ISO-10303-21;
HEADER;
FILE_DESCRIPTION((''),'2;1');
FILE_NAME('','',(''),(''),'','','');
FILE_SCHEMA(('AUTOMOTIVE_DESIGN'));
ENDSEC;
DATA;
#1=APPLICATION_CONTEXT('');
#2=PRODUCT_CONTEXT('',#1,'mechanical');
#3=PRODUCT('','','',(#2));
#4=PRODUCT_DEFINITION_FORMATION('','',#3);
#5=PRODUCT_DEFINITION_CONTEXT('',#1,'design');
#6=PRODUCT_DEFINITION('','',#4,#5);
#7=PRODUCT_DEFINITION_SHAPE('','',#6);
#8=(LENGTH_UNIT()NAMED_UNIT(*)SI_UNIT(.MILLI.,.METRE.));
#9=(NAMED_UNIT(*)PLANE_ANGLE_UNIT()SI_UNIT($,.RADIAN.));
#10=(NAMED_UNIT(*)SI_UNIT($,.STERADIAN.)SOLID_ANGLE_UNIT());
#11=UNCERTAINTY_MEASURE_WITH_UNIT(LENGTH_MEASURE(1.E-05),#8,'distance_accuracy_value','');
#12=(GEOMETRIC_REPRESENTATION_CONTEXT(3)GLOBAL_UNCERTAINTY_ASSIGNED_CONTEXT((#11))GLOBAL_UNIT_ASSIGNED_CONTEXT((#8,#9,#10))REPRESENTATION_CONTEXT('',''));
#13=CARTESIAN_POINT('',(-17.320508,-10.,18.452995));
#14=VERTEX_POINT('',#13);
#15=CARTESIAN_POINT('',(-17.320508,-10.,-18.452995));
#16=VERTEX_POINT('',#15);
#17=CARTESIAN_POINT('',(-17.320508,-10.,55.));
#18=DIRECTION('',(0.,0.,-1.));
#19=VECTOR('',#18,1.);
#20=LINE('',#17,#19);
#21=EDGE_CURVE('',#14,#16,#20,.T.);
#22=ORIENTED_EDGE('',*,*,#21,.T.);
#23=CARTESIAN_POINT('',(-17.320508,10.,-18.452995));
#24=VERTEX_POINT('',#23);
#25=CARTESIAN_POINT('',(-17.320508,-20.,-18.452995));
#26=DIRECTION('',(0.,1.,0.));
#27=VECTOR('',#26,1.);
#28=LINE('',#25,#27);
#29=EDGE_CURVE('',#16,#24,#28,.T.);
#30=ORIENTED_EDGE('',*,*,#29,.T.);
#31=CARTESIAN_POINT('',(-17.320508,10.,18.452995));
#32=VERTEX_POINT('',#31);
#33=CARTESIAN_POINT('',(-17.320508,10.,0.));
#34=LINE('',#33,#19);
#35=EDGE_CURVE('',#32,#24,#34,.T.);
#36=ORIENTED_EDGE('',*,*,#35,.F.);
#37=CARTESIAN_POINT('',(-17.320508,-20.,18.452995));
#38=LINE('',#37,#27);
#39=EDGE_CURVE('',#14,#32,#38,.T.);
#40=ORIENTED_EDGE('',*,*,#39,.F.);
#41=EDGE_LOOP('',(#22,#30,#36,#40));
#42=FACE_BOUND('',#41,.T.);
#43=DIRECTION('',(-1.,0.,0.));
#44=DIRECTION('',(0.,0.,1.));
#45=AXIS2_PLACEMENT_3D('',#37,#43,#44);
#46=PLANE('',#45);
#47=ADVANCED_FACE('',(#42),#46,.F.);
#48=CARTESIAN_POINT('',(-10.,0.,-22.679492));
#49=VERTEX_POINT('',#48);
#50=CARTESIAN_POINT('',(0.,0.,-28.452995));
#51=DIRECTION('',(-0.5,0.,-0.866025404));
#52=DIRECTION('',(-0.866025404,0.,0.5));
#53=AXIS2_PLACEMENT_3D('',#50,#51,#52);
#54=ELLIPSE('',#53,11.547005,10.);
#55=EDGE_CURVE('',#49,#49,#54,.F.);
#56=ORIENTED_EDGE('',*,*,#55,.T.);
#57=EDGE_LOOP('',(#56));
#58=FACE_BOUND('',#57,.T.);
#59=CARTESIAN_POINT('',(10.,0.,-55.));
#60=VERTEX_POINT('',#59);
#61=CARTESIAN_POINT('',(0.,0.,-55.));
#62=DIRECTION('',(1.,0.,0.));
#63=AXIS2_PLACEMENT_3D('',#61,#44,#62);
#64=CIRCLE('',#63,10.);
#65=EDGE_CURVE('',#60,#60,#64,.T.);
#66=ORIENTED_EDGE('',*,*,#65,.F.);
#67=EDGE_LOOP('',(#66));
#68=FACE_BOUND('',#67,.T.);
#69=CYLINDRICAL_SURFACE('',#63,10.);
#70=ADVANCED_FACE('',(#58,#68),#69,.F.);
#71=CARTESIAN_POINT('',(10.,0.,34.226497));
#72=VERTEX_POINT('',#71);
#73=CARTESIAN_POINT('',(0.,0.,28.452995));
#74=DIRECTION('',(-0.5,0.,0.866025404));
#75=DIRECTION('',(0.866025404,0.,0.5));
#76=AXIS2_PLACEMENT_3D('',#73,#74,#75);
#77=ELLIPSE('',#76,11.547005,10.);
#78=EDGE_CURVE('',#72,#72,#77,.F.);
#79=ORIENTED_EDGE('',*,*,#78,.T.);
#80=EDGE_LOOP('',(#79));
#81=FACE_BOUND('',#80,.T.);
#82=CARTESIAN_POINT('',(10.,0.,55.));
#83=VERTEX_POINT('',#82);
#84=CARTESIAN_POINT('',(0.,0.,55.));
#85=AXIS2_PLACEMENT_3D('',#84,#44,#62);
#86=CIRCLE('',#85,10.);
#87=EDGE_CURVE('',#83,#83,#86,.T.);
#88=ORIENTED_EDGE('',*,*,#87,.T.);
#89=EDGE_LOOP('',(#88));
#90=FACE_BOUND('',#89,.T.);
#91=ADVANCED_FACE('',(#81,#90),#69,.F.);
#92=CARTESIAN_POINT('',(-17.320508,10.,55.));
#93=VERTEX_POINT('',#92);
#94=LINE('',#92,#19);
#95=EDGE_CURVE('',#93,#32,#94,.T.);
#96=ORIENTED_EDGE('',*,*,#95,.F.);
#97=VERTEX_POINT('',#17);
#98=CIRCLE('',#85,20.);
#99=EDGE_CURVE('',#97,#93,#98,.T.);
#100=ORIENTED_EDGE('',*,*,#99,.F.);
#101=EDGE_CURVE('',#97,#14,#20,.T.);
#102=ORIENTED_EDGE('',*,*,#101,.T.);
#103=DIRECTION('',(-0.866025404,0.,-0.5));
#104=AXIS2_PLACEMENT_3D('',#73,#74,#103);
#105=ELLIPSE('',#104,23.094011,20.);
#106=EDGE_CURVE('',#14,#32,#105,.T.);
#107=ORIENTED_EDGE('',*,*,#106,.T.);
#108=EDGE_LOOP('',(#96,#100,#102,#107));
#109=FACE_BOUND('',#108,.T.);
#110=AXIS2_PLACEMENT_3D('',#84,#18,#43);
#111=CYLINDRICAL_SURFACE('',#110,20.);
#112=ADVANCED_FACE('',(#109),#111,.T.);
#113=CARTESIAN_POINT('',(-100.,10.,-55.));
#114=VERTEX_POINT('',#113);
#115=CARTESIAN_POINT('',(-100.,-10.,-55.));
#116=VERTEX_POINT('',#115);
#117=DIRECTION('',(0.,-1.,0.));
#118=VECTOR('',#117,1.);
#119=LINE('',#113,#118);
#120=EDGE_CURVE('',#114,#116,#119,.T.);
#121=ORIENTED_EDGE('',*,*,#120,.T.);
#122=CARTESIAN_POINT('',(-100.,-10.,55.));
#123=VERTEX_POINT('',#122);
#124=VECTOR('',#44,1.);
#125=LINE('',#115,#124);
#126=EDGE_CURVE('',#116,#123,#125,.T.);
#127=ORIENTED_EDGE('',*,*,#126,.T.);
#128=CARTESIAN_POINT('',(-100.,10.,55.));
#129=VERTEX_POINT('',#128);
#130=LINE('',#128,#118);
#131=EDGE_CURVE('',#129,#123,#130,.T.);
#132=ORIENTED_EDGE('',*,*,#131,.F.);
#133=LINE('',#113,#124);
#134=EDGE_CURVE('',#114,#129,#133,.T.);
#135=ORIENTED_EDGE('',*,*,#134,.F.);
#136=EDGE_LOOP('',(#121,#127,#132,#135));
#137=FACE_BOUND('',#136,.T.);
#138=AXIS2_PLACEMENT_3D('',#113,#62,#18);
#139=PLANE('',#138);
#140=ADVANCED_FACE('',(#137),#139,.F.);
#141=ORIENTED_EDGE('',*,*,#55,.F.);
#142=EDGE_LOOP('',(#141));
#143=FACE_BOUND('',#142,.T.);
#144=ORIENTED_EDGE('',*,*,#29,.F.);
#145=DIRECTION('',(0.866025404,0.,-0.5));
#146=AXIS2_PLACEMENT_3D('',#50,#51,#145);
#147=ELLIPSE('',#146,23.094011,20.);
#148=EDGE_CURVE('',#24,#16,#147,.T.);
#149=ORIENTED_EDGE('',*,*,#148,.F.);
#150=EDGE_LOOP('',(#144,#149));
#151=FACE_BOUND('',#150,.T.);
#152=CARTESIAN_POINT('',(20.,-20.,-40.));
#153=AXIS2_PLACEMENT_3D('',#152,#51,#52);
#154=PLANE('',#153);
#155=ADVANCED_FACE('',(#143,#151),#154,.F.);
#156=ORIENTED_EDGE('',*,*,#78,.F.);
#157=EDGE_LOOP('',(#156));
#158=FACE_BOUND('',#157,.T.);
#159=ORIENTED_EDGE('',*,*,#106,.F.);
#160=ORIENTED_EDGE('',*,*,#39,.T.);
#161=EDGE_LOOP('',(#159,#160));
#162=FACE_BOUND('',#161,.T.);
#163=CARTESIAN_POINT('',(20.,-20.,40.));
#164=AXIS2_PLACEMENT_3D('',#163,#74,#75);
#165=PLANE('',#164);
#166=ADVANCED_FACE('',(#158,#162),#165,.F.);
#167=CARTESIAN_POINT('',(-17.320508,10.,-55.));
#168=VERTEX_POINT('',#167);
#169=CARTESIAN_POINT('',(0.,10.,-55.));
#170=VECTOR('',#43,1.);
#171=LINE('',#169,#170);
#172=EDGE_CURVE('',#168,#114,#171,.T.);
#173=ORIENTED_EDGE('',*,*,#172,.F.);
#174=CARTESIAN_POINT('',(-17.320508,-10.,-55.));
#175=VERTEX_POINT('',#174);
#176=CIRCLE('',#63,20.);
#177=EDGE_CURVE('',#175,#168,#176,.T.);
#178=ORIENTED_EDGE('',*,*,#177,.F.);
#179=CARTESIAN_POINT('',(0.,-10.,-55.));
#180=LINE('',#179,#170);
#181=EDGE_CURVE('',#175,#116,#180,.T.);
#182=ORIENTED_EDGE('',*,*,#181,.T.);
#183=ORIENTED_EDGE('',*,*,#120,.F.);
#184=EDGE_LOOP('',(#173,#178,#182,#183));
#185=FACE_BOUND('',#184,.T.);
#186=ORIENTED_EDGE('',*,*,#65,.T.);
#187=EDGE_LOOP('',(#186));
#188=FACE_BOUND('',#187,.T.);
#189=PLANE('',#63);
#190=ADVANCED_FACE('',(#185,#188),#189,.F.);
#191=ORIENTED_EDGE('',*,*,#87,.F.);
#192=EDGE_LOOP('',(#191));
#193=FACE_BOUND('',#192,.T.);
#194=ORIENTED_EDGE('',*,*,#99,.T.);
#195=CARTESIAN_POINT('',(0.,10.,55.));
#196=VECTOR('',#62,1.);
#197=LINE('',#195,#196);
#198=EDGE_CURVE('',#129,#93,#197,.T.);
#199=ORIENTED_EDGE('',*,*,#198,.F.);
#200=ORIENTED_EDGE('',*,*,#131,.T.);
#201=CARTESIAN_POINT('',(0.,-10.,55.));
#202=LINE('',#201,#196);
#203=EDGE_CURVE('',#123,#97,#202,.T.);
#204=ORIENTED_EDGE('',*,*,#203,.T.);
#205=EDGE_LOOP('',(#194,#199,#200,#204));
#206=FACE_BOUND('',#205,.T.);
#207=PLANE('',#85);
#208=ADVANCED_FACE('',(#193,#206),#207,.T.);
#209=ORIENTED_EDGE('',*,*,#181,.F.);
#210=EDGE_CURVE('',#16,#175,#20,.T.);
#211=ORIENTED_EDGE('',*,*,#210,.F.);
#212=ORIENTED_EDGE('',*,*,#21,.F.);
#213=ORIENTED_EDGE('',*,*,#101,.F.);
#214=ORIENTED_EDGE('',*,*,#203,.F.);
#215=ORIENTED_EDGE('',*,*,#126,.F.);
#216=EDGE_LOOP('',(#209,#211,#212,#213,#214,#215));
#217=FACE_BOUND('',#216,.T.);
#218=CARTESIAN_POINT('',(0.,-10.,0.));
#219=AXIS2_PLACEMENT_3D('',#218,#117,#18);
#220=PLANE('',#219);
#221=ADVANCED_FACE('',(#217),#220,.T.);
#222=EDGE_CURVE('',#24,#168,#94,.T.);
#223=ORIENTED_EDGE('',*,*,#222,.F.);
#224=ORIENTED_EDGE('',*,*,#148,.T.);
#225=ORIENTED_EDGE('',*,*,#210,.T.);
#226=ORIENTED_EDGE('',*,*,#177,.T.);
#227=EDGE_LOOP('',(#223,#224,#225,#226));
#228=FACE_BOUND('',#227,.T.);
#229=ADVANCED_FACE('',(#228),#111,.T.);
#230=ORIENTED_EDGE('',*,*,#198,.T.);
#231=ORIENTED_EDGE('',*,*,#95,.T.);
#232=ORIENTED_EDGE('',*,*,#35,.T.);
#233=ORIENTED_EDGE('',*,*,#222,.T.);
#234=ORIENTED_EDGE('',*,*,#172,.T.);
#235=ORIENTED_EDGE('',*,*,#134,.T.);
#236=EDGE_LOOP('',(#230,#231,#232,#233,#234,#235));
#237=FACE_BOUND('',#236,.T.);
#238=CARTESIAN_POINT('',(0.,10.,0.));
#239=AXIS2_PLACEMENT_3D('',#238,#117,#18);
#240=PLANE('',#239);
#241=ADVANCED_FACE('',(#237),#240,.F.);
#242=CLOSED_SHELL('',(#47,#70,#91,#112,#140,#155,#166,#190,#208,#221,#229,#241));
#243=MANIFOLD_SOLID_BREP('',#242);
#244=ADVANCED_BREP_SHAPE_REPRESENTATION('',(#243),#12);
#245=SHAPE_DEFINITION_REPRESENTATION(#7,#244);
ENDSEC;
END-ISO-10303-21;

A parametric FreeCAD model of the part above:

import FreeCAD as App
import Part
import Sketcher

V = App.Vector
Q = App.Units.Quantity


def add_polygon(sketch, points):
    """Adds a closed chain of lines whose ends are joined by coincident constraints."""
    first, n = sketch.GeometryCount, len(points)
    for a, b in zip(points, points[1:] + points[:1]):
        sketch.addGeometry(Part.LineSegment(App.Vector(*a, 0), App.Vector(*b, 0)), False)
    for i in range(n):
        sketch.addConstraint(Sketcher.Constraint("Coincident", first + i, 2, first + (i + 1) % n, 1))

doc = App.newDocument("Part")
body = doc.addObject("PartDesign::Body", "Body")

# Sketch on XY plane
sketch1 = body.newObject("Sketcher::SketchObject", "Sketch")
sketch1.AttachmentSupport = (doc.getObject("XY_Plane"), [""])
sketch1.MapMode = "FlatFace"
sketch1.addGeometry(Part.Circle(V(0, 0, 0), V(0, 0, 1), 20), False)
sketch1.addConstraint(Sketcher.Constraint("Coincident", 0, 3, -1, 1))
sketch1.addConstraint(Sketcher.Constraint("Diameter", 0, Q("40 mm")))
pad1 = body.newObject("PartDesign::Pad", "Pad")
pad1.Profile = sketch1
pad1.Length = 110
pad1.Midplane = True

# Sketch on XZ plane
sketch2 = body.newObject("Sketcher::SketchObject", "Sketch001")
sketch2.AttachmentSupport = (doc.getObject("XZ_Plane"), [""])
sketch2.MapMode = "FlatFace"
add_polygon(sketch2, [(-100, -55), (-100, 55), (0, 55), (0, -55)])  # lines 0-3
sketch2.addConstraint(Sketcher.Constraint("Vertical", 0))
sketch2.addConstraint(Sketcher.Constraint("Horizontal", 1))
sketch2.addConstraint(Sketcher.Constraint("Vertical", 2))
sketch2.addConstraint(Sketcher.Constraint("Horizontal", 3))
sketch2.addConstraint(Sketcher.Constraint("Symmetric", 1, 2, 2, 2, -1, 1))
sketch2.addConstraint(Sketcher.Constraint("DistanceX", 1, 1, 1, 2, Q("100 mm")))
sketch2.addConstraint(Sketcher.Constraint("DistanceY", 0, 1, 0, 2, Q("110 mm")))
pad2 = body.newObject("PartDesign::Pad", "Pad001")
pad2.Profile = sketch2
pad2.Length = 20
pad2.Midplane = True

# Sketch on XY plane
sketch3 = body.newObject("Sketcher::SketchObject", "Sketch002")
sketch3.AttachmentSupport = (doc.getObject("XY_Plane"), [""])
sketch3.MapMode = "FlatFace"
sketch3.AttachmentOffset = App.Placement(V(0, 0, 55), App.Rotation())
sketch3.addGeometry(Part.Circle(V(0, 0, 0), V(0, 0, 1), 10), False)
sketch3.addConstraint(Sketcher.Constraint("Coincident", 0, 3, -1, 1))
sketch3.addConstraint(Sketcher.Constraint("Diameter", 0, Q("20 mm")))
pocket1 = body.newObject("PartDesign::Pocket", "Pocket")
pocket1.Profile = sketch3
pocket1.Type = "ThroughAll"

# Sketch on XZ plane
sketch4 = body.newObject("Sketcher::SketchObject", "Sketch003")
sketch4.AttachmentSupport = (doc.getObject("XZ_Plane"), [""])
sketch4.MapMode = "FlatFace"
sketch4.AttachmentOffset = App.Placement(V(0, 0, -10), App.Rotation())
add_polygon(sketch4, [(-17, 18), (20, 40), (20, -40), (-17, -18)])  # lines 0-3
sketch4.addConstraint(Sketcher.Constraint("Vertical", 1))
sketch4.addConstraint(Sketcher.Constraint("Vertical", 3))
sketch4.addConstraint(Sketcher.Constraint("Equal", 0, 2))
sketch4.addConstraint(Sketcher.Constraint("DistanceY", 1, 2, 1, 1, Q("80 mm")))
sketch4.addConstraint(Sketcher.Constraint("Angle", 0, Q("30 deg")))
sketch4.addConstraint(Sketcher.Constraint("DistanceX", -1, 1, 0, 2, Q("20 mm")))
sketch4.addConstraint(Sketcher.Constraint("DistanceY", -1, 1, 0, 2, Q("40 mm")))
sketch4.addConstraint(Sketcher.Constraint("DistanceY", 3, 1, 3, 2, Q("36.905989 mm")))
pocket2 = body.newObject("PartDesign::Pocket", "Pocket001")
pocket2.Profile = sketch4
pocket2.Type = "ThroughAll"
pocket2.Midplane = True

doc.recompute()
